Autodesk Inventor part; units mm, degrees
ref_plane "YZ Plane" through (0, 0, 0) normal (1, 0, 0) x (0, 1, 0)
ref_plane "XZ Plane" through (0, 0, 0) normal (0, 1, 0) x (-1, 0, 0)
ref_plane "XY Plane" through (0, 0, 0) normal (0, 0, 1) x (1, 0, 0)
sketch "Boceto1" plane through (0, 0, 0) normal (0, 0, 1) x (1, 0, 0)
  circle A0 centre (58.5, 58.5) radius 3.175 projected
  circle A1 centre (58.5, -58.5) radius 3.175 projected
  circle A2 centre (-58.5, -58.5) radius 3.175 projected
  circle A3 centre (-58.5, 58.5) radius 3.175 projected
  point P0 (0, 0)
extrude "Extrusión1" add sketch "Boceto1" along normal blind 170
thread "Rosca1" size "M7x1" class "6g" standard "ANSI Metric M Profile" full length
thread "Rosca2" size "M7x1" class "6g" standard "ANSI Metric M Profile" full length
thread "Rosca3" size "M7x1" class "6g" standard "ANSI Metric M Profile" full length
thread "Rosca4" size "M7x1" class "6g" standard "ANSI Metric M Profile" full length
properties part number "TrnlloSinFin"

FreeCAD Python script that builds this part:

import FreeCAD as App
import Part
import Sketcher
from FreeCAD import Vector

doc = App.newDocument("Part")
params = doc.addObject("Spreadsheet::Sheet", "Params")
for row, (alias, value) in enumerate([
    ("sketch1_diameter", "6.35 mm"),
    ("pad1_length", "170 mm"),
], start=1):
    params.set(f"A{row}", alias)
    params.set(f"B{row}", "=" + value)
    params.setAlias(f"B{row}", alias)

body = doc.addObject("PartDesign::Body", "Body")
body.AllowCompound = True

# Sketch on XY plane
sketch1 = doc.addObject("Sketcher::SketchObject", "Sketch")
body.addObject(sketch1)
sketch1.AttachmentSupport = (doc.XY_Plane, [""])
sketch1.MapMode = "FlatFace"
sketch1.addGeometry(Part.Circle(Vector(58.5, 58.5, 0), Vector(0, 0, 1), 3.2), False)
sketch1.addGeometry(Part.Circle(Vector(58.5, -58.5, 0), Vector(0, 0, 1), 3.2), False)
sketch1.addGeometry(Part.Circle(Vector(-58.5, -58.5, 0), Vector(0, 0, 1), 3.2), False)
sketch1.addGeometry(Part.Circle(Vector(-58.5, 58.5, 0), Vector(0, 0, 1), 3.2), False)
sketch1.addConstraint(Sketcher.Constraint("Equal", 0, 1))
sketch1.addConstraint(Sketcher.Constraint("Equal", 1, 2))
sketch1.addConstraint(Sketcher.Constraint("Equal", 2, 3))
sketch1.addConstraint(Sketcher.Constraint("Symmetric", 0, 3, 2, 3, -1, 1))
sketch1.addConstraint(Sketcher.Constraint("Symmetric", 1, 3, 3, 3, -1, 1))
sketch1.addConstraint(Sketcher.Constraint("Symmetric", 1, 3, 2, 3, -2))
sketch1.addConstraint(Sketcher.Constraint("Diameter", 0, 6.35))
sketch1.addConstraint(Sketcher.Constraint("DistanceY", 1, 3, 0, 3, 117.0))
sketch1.addConstraint(Sketcher.Constraint("DistanceX", 2, 3, 1, 3, 117.0))
sketch1.setExpression("Constraints[6]", "Params.sketch1_diameter")
pad1 = doc.addObject("PartDesign::Pad", "Pad")
body.addObject(pad1)
pad1.Profile = sketch1
pad1.setExpression("Length", "Params.pad1_length")

doc.recompute()
